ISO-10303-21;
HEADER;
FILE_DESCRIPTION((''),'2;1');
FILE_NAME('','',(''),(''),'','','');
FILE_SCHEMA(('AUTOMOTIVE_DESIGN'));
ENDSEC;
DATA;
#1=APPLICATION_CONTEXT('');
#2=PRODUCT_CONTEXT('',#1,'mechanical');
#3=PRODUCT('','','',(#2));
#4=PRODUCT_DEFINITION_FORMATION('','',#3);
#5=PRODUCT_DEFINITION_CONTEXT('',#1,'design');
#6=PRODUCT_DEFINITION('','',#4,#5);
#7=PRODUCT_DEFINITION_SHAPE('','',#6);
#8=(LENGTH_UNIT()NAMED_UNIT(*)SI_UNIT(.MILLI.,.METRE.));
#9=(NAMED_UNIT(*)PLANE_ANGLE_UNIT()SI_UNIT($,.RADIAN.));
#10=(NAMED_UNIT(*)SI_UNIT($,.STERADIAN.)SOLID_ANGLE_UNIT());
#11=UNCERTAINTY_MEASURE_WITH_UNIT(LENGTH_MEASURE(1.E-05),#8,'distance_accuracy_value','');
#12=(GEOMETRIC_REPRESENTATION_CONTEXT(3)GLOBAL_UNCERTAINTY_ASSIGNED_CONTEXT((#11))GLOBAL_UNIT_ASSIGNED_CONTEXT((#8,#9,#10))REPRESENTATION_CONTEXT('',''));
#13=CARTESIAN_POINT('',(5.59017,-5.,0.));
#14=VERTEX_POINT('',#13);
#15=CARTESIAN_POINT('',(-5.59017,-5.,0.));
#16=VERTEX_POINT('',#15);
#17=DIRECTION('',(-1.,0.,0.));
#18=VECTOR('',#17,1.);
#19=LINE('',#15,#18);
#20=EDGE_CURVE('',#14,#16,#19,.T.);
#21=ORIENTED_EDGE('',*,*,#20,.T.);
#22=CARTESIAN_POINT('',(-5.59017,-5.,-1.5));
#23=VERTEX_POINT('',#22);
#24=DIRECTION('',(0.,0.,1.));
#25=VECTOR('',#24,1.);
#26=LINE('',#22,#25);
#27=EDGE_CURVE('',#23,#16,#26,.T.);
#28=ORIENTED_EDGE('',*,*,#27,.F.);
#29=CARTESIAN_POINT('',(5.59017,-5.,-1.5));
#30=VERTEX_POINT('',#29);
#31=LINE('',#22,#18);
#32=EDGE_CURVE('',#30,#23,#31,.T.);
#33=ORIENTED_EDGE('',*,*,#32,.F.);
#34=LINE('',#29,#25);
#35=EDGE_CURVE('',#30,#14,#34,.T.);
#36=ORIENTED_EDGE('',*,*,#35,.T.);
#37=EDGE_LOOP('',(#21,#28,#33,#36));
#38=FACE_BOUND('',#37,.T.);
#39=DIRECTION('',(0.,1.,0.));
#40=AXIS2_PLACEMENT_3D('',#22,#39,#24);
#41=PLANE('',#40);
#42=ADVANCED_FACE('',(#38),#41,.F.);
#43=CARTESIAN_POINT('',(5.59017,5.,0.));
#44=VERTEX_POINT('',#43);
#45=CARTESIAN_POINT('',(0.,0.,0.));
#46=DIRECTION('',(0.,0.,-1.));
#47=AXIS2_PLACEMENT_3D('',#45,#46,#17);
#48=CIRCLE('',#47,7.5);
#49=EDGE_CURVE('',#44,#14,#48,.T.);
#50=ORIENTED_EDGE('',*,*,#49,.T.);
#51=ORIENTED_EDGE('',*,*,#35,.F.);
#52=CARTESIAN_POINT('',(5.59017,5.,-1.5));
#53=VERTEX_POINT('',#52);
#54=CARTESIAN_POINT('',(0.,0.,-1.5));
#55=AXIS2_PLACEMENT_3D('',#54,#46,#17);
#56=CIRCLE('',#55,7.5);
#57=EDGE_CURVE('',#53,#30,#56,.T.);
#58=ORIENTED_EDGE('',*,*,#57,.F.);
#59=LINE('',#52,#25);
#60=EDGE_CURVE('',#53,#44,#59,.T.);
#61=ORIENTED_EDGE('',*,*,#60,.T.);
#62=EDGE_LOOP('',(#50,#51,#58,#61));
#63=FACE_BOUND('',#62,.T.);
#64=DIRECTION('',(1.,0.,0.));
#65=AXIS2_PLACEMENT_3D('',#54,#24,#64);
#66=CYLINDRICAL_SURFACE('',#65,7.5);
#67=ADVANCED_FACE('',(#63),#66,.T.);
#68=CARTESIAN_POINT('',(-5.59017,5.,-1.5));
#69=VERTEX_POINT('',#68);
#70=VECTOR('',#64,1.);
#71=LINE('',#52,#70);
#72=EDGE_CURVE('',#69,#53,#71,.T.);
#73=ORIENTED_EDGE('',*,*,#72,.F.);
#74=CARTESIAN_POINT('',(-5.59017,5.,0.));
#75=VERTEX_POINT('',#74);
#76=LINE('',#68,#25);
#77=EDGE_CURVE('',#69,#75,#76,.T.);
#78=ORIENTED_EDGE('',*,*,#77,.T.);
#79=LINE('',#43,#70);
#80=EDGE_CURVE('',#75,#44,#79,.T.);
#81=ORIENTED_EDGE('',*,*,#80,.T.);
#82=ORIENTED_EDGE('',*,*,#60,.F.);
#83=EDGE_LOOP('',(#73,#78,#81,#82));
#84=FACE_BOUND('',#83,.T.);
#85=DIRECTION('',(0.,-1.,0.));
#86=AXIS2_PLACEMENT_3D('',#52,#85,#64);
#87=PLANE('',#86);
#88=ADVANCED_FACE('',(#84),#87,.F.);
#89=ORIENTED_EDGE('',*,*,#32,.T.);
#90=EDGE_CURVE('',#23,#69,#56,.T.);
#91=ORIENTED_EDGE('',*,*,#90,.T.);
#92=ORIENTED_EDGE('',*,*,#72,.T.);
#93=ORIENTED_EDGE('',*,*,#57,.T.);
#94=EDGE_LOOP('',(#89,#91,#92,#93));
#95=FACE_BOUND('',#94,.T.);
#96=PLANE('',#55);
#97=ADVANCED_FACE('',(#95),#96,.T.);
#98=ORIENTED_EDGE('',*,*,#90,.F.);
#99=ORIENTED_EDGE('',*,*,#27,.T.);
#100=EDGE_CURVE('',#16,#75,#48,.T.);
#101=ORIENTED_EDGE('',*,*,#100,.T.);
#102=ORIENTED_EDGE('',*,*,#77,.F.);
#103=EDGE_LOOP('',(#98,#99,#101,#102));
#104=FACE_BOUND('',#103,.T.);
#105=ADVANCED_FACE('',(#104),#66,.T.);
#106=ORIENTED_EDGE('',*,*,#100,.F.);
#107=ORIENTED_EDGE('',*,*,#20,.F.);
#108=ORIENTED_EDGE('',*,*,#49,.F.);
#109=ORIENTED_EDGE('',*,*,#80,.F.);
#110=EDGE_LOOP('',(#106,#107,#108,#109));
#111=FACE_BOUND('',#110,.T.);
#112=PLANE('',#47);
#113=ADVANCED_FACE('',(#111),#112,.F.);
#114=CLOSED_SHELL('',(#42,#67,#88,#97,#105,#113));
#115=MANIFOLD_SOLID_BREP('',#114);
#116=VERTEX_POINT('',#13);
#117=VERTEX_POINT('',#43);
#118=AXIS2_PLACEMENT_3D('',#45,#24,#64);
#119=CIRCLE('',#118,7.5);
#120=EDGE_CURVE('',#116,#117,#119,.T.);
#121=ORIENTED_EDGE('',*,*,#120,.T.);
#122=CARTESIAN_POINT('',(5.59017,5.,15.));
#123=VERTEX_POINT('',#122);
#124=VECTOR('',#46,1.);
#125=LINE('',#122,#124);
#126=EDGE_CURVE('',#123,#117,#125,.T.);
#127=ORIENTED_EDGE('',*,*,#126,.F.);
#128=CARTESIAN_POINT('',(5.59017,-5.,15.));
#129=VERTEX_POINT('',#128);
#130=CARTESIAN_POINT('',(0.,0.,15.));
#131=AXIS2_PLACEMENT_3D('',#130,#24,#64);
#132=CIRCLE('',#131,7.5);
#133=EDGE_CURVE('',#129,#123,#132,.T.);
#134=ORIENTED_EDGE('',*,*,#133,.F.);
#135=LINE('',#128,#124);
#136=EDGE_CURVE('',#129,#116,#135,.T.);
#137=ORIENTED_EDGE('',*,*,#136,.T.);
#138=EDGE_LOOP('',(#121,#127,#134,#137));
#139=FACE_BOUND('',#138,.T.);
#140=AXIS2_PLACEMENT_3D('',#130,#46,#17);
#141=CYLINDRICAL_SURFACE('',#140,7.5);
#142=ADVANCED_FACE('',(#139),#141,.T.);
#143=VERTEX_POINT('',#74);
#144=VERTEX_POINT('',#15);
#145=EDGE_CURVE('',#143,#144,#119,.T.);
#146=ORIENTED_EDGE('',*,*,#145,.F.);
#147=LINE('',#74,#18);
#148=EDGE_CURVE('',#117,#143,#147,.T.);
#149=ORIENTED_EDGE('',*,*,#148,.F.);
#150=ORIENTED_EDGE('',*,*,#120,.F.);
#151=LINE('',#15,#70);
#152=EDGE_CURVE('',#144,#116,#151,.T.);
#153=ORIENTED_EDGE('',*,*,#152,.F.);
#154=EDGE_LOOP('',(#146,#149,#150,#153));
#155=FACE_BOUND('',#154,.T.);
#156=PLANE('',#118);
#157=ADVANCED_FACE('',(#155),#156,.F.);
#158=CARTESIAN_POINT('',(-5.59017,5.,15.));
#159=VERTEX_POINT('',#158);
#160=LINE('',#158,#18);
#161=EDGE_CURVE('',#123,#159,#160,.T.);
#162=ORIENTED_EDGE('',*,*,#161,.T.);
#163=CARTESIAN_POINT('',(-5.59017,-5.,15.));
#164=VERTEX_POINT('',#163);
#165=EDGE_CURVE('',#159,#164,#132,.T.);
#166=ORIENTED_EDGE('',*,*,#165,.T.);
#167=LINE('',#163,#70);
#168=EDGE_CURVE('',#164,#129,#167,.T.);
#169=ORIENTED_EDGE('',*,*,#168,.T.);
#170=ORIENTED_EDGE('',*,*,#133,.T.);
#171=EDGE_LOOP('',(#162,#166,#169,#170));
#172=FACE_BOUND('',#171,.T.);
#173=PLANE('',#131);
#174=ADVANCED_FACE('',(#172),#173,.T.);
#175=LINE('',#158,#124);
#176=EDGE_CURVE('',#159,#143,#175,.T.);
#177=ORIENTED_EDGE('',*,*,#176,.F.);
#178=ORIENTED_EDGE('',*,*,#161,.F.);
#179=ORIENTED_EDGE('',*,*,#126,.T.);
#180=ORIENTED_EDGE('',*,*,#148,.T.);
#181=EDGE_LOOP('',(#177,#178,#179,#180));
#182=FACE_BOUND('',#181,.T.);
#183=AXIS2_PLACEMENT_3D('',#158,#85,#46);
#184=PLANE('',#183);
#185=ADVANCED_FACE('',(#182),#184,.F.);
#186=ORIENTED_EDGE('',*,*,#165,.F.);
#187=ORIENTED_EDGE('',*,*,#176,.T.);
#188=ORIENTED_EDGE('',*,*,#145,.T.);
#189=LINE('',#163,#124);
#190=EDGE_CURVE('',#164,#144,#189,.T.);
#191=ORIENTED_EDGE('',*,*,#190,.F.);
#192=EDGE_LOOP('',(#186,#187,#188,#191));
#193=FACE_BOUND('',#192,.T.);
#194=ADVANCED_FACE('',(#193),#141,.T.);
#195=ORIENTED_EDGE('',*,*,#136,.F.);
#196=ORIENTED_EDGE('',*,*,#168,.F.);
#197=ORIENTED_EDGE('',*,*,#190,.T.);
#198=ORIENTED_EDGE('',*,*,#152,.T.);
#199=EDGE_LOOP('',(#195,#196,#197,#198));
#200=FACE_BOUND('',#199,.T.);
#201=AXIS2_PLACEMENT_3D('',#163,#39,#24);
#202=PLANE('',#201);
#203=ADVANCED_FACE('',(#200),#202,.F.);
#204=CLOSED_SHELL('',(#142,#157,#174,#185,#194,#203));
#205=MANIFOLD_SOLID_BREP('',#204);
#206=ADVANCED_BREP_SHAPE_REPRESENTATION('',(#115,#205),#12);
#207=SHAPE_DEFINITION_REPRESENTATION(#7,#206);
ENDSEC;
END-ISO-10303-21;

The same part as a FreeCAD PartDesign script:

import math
import FreeCAD as App
import Part
import Sketcher
from FreeCAD import Vector
Q = App.Units.Quantity

doc = App.newDocument("Part")
body = doc.addObject("PartDesign::Body", "Body")

# Sketch on XY plane
sketch1 = body.newObject("Sketcher::SketchObject", "Sketch")
sketch1.AttachmentSupport = (doc.getObject("XY_Plane"), [""])
sketch1.MapMode = "FlatFace"
sketch1.addGeometry([
    Part.LineSegment(Vector(-6, -5, 0), Vector(6, -5, 0)),
    Part.ArcOfCircle(Part.Circle(Vector(0, 0, 0), Vector(0, 0, 1), 8), math.radians(-42), math.radians(42)),
    Part.LineSegment(Vector(6, 5, 0), Vector(-6, 5, 0)),
    Part.ArcOfCircle(Part.Circle(Vector(0, 0, 0), Vector(0, 0, 1), 8), math.radians(138), math.radians(222)),
], False)
sketch1.addConstraint([
    Sketcher.Constraint("Coincident", 0, 2, 1, 1),
    Sketcher.Constraint("Coincident", 1, 2, 2, 1),
    Sketcher.Constraint("Coincident", 2, 2, 3, 1),
    Sketcher.Constraint("Coincident", 3, 2, 0, 1),
    Sketcher.Constraint("Horizontal", 0),
    Sketcher.Constraint("Horizontal", 2),
    Sketcher.Constraint("Coincident", 1, 3, -1, 1),
    Sketcher.Constraint("Coincident", 3, 3, -1, 1),
    Sketcher.Constraint("Equal", 1, 3),
    Sketcher.Constraint("Vertical", 0, 2, 1, 2),
    Sketcher.Constraint("Radius", 1, Q("7.5 mm")),
    Sketcher.Constraint("DistanceY", 0, 2, -1, 1, Q("5 mm")),
])
pad1 = body.newObject("PartDesign::Pad", "Pad")
pad1.Profile = sketch1
pad1.Length = 15
body2 = doc.addObject("PartDesign::Body", "Body001")

# Sketch on XY plane
sketch2 = body2.newObject("Sketcher::SketchObject", "Sketch001")
sketch2.AttachmentSupport = (doc.getObject("XY_Plane001"), [""])
sketch2.MapMode = "FlatFace"
sketch2.addGeometry([
    Part.LineSegment(Vector(6, -5, 0), Vector(-6, -5, 0)),
    Part.ArcOfCircle(Part.Circle(Vector(0, 0, 0), Vector(0, 0, 1), 8), math.radians(138), math.radians(222)),
    Part.LineSegment(Vector(-6, 5, 0), Vector(6, 5, 0)),
    Part.ArcOfCircle(Part.Circle(Vector(0, 0, 0), Vector(0, 0, 1), 8), math.radians(-42), math.radians(42)),
], False)
sketch2.addConstraint([
    Sketcher.Constraint("Coincident", 0, 2, 1, 2),
    Sketcher.Constraint("Coincident", 1, 1, 2, 1),
    Sketcher.Constraint("Coincident", 2, 2, 3, 2),
    Sketcher.Constraint("Coincident", 3, 1, 0, 1),
    Sketcher.Constraint("Horizontal", 0),
    Sketcher.Constraint("Horizontal", 2),
    Sketcher.Constraint("Coincident", 1, 3, -1, 1),
    Sketcher.Constraint("Coincident", 3, 3, -1, 1),
    Sketcher.Constraint("Equal", 1, 3),
    Sketcher.Constraint("Vertical", 0, 2, 1, 1),
    Sketcher.Constraint("Radius", 1, Q("7.5 mm")),
    Sketcher.Constraint("DistanceY", 0, 2, -1, 1, Q("5 mm")),
])
pad2 = body2.newObject("PartDesign::Pad", "Pad001")
pad2.Profile = sketch2
pad2.Length = 1.5
pad2.Reversed = True

doc.recompute()
